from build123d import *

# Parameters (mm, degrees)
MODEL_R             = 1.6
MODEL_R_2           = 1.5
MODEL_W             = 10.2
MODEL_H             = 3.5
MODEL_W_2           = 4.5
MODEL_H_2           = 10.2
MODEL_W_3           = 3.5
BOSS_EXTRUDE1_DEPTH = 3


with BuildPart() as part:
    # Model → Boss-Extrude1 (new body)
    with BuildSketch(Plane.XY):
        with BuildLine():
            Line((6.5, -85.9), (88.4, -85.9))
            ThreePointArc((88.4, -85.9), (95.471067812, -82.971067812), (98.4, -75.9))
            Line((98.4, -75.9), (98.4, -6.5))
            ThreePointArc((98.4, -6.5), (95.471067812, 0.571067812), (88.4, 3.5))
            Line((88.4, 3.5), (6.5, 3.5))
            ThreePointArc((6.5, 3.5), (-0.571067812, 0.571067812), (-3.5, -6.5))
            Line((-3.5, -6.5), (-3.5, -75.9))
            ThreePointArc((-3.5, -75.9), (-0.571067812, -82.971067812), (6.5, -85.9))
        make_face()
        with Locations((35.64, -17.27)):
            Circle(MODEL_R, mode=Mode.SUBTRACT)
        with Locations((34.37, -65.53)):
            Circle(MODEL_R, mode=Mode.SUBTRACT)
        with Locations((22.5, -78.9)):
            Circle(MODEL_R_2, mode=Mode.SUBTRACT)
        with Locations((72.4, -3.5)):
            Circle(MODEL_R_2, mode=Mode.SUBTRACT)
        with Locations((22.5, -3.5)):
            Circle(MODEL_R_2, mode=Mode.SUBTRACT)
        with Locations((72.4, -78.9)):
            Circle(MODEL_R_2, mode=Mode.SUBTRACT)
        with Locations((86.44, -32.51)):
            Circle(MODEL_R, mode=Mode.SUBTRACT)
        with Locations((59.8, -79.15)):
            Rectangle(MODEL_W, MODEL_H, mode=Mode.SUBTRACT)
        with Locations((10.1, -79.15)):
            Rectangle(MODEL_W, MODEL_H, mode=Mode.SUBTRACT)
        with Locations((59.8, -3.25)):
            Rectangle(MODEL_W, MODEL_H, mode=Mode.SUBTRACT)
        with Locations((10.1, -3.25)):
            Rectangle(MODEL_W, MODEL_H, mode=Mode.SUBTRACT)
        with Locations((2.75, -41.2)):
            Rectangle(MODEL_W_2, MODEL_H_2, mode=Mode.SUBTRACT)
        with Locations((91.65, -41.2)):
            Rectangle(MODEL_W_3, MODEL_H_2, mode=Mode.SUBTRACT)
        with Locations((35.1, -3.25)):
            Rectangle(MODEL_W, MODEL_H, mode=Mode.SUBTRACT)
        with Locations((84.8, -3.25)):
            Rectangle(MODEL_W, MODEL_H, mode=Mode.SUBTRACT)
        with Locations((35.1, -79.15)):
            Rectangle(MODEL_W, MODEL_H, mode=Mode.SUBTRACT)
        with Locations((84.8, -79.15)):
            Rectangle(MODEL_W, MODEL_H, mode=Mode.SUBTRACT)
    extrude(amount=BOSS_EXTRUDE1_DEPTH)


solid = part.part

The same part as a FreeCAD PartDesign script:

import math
import FreeCAD as App
import Part
import Sketcher
from FreeCAD import Vector

doc = App.newDocument("Part")
body = doc.addObject("PartDesign::Body", "Body")

# Sketch on XY plane
sketch1 = body.newObject("Sketcher::SketchObject", "Sketch")
sketch1.AttachmentSupport = (doc.getObject("XY_Plane"), [""])
sketch1.MapMode = "FlatFace"
sketch1.addGeometry([
    Part.LineSegment(Vector(6.5, -85.9, 0), Vector(88.4, -85.9, 0)),  # 0
    Part.ArcOfCircle(Part.Circle(Vector(88.4, -75.9, 0), Vector(0, 0, 1), 10), math.radians(-90), math.radians(0)),  # 1
    Part.LineSegment(Vector(98.4, -75.9, 0), Vector(98.4, -6.5, 0)),  # 2
    Part.ArcOfCircle(Part.Circle(Vector(88.4, -6.5, 0), Vector(0, 0, 1), 10), math.radians(0), math.radians(90)),  # 3
    Part.LineSegment(Vector(88.4, 3.5, 0), Vector(6.5, 3.5, 0)),  # 4
    Part.ArcOfCircle(Part.Circle(Vector(6.5, -6.5, 0), Vector(0, 0, 1), 10), math.radians(90), math.radians(180)),  # 5
    Part.LineSegment(Vector(-3.5, -6.5, 0), Vector(-3.5, -75.9, 0)),  # 6
    Part.ArcOfCircle(Part.Circle(Vector(6.5, -75.9, 0), Vector(0, 0, 1), 10), math.radians(180), math.radians(270)),  # 7
    Part.LineSegment(Vector(15.2, -80.9, 0), Vector(5, -80.9, 0)),  # 8
    Part.LineSegment(Vector(5, -80.9, 0), Vector(5, -77.4, 0)),  # 9
    Part.LineSegment(Vector(5, -77.4, 0), Vector(15.2, -77.4, 0)),  # 10
    Part.LineSegment(Vector(15.2, -77.4, 0), Vector(15.2, -80.9, 0)),  # 11
    Part.Circle(Vector(22.5, -78.9, 0), Vector(0, 0, 1), 1.5),  # 12
    Part.LineSegment(Vector(40.2, -80.9, 0), Vector(30, -80.9, 0)),  # 13
    Part.LineSegment(Vector(30, -80.9, 0), Vector(30, -77.4, 0)),  # 14
    Part.LineSegment(Vector(30, -77.4, 0), Vector(40.2, -77.4, 0)),  # 15
    Part.LineSegment(Vector(40.2, -77.4, 0), Vector(40.2, -80.9, 0)),  # 16
    Part.Circle(Vector(34.37, -65.53, 0), Vector(0, 0, 1), 1.6),  # 17
    Part.LineSegment(Vector(64.9, -80.9, 0), Vector(54.7, -80.9, 0)),  # 18
    Part.LineSegment(Vector(54.7, -80.9, 0), Vector(54.7, -77.4, 0)),  # 19
    Part.LineSegment(Vector(54.7, -77.4, 0), Vector(64.9, -77.4, 0)),  # 20
    Part.LineSegment(Vector(64.9, -77.4, 0), Vector(64.9, -80.9, 0)),  # 21
    Part.Circle(Vector(72.4, -78.9, 0), Vector(0, 0, 1), 1.5),  # 22
    Part.LineSegment(Vector(89.9, -80.9, 0), Vector(79.7, -80.9, 0)),  # 23
    Part.LineSegment(Vector(79.7, -80.9, 0), Vector(79.7, -77.4, 0)),  # 24
    Part.LineSegment(Vector(79.7, -77.4, 0), Vector(89.9, -77.4, 0)),  # 25
    Part.LineSegment(Vector(89.9, -77.4, 0), Vector(89.9, -80.9, 0)),  # 26
    Part.LineSegment(Vector(5, -46.3, 0), Vector(0.5, -46.3, 0)),  # 27
    Part.LineSegment(Vector(0.5, -46.3, 0), Vector(0.5, -36.1, 0)),  # 28
    Part.LineSegment(Vector(0.5, -36.1, 0), Vector(5, -36.1, 0)),  # 29
    Part.LineSegment(Vector(5, -36.1, 0), Vector(5, -46.3, 0)),  # 30
    Part.LineSegment(Vector(15.2, -5, 0), Vector(5, -5, 0)),  # 31
    Part.LineSegment(Vector(5, -5, 0), Vector(5, -1.5, 0)),  # 32
    Part.LineSegment(Vector(5, -1.5, 0), Vector(15.2, -1.5, 0)),  # 33
    Part.LineSegment(Vector(15.2, -1.5, 0), Vector(15.2, -5, 0)),  # 34
    Part.Circle(Vector(22.5, -3.5, 0), Vector(0, 0, 1), 1.5),  # 35
    Part.Circle(Vector(35.64, -17.27, 0), Vector(0, 0, 1), 1.6),  # 36
    Part.LineSegment(Vector(40.2, -5, 0), Vector(30, -5, 0)),  # 37
    Part.LineSegment(Vector(30, -5, 0), Vector(30, -1.5, 0)),  # 38
    Part.LineSegment(Vector(30, -1.5, 0), Vector(40.2, -1.5, 0)),  # 39
    Part.LineSegment(Vector(40.2, -1.5, 0), Vector(40.2, -5, 0)),  # 40
    Part.LineSegment(Vector(93.4, -46.3, 0), Vector(89.9, -46.3, 0)),  # 41
    Part.LineSegment(Vector(89.9, -46.3, 0), Vector(89.9, -36.1, 0)),  # 42
    Part.LineSegment(Vector(89.9, -36.1, 0), Vector(93.4, -36.1, 0)),  # 43
    Part.LineSegment(Vector(93.4, -36.1, 0), Vector(93.4, -46.3, 0)),  # 44
    Part.Circle(Vector(86.44, -32.51, 0), Vector(0, 0, 1), 1.6),  # 45
    Part.LineSegment(Vector(64.9, -5, 0), Vector(54.7, -5, 0)),  # 46
    Part.LineSegment(Vector(54.7, -5, 0), Vector(54.7, -1.5, 0)),  # 47
    Part.LineSegment(Vector(54.7, -1.5, 0), Vector(64.9, -1.5, 0)),  # 48
    Part.LineSegment(Vector(64.9, -1.5, 0), Vector(64.9, -5, 0)),  # 49
    Part.Circle(Vector(72.4, -3.5, 0), Vector(0, 0, 1), 1.5),  # 50
    Part.LineSegment(Vector(89.9, -5, 0), Vector(79.7, -5, 0)),  # 51
    Part.LineSegment(Vector(79.7, -5, 0), Vector(79.7, -1.5, 0)),  # 52
    Part.LineSegment(Vector(79.7, -1.5, 0), Vector(89.9, -1.5, 0)),  # 53
    Part.LineSegment(Vector(89.9, -1.5, 0), Vector(89.9, -5, 0)),  # 54
], False)
sketch1.addConstraint([
    Sketcher.Constraint("Tangent", 0, 2, 1, 1),
    Sketcher.Constraint("Tangent", 1, 2, 2, 1),
    Sketcher.Constraint("Tangent", 2, 2, 3, 1),
    Sketcher.Constraint("Tangent", 3, 2, 4, 1),
    Sketcher.Constraint("Tangent", 4, 2, 5, 1),
    Sketcher.Constraint("Tangent", 5, 2, 6, 1),
    Sketcher.Constraint("Tangent", 6, 2, 7, 1),
    Sketcher.Constraint("Tangent", 7, 2, 0, 1),
    Sketcher.Constraint("Coincident", 8, 2, 9, 1),
    Sketcher.Constraint("Coincident", 9, 2, 10, 1),
    Sketcher.Constraint("Coincident", 10, 2, 11, 1),
    Sketcher.Constraint("Coincident", 11, 2, 8, 1),
    Sketcher.Constraint("Coincident", 13, 2, 14, 1),
    Sketcher.Constraint("Coincident", 14, 2, 15, 1),
    Sketcher.Constraint("Coincident", 15, 2, 16, 1),
    Sketcher.Constraint("Coincident", 16, 2, 13, 1),
    Sketcher.Constraint("Coincident", 18, 2, 19, 1),
    Sketcher.Constraint("Coincident", 19, 2, 20, 1),
    Sketcher.Constraint("Coincident", 20, 2, 21, 1),
    Sketcher.Constraint("Coincident", 21, 2, 18, 1),
    Sketcher.Constraint("Coincident", 23, 2, 24, 1),
    Sketcher.Constraint("Coincident", 24, 2, 25, 1),
    Sketcher.Constraint("Coincident", 25, 2, 26, 1),
    Sketcher.Constraint("Coincident", 26, 2, 23, 1),
    Sketcher.Constraint("Coincident", 27, 2, 28, 1),
    Sketcher.Constraint("Coincident", 28, 2, 29, 1),
    Sketcher.Constraint("Coincident", 29, 2, 30, 1),
    Sketcher.Constraint("Coincident", 30, 2, 27, 1),
    Sketcher.Constraint("Coincident", 31, 2, 32, 1),
    Sketcher.Constraint("Coincident", 32, 2, 33, 1),
    Sketcher.Constraint("Coincident", 33, 2, 34, 1),
    Sketcher.Constraint("Coincident", 34, 2, 31, 1),
    Sketcher.Constraint("Coincident", 37, 2, 38, 1),
    Sketcher.Constraint("Coincident", 38, 2, 39, 1),
    Sketcher.Constraint("Coincident", 39, 2, 40, 1),
    Sketcher.Constraint("Coincident", 40, 2, 37, 1),
    Sketcher.Constraint("Coincident", 41, 2, 42, 1),
    Sketcher.Constraint("Coincident", 42, 2, 43, 1),
    Sketcher.Constraint("Coincident", 43, 2, 44, 1),
    Sketcher.Constraint("Coincident", 44, 2, 41, 1),
    Sketcher.Constraint("Coincident", 46, 2, 47, 1),
    Sketcher.Constraint("Coincident", 47, 2, 48, 1),
    Sketcher.Constraint("Coincident", 48, 2, 49, 1),
    Sketcher.Constraint("Coincident", 49, 2, 46, 1),
    Sketcher.Constraint("Coincident", 51, 2, 52, 1),
    Sketcher.Constraint("Coincident", 52, 2, 53, 1),
    Sketcher.Constraint("Coincident", 53, 2, 54, 1),
    Sketcher.Constraint("Coincident", 54, 2, 51, 1),
    Sketcher.Constraint("Horizontal", 0),
    Sketcher.Constraint("Vertical", 2),
    Sketcher.Constraint("Horizontal", 4),
    Sketcher.Constraint("Vertical", 6),
    Sketcher.Constraint("Horizontal", 8),
    Sketcher.Constraint("Vertical", 9),
    Sketcher.Constraint("Horizontal", 10),
    Sketcher.Constraint("Vertical", 11),
    Sketcher.Constraint("Horizontal", 13),
    Sketcher.Constraint("Vertical", 14),
    Sketcher.Constraint("Horizontal", 15),
    Sketcher.Constraint("Vertical", 16),
    Sketcher.Constraint("Horizontal", 18),
    Sketcher.Constraint("Vertical", 19),
    Sketcher.Constraint("Horizontal", 20),
    Sketcher.Constraint("Vertical", 21),
    Sketcher.Constraint("Horizontal", 23),
    Sketcher.Constraint("Vertical", 24),
    Sketcher.Constraint("Horizontal", 25),
    Sketcher.Constraint("Vertical", 26),
    Sketcher.Constraint("Horizontal", 27),
    Sketcher.Constraint("Vertical", 28),
    Sketcher.Constraint("Horizontal", 29),
    Sketcher.Constraint("Vertical", 30),
    Sketcher.Constraint("Horizontal", 31),
    Sketcher.Constraint("Vertical", 32),
    Sketcher.Constraint("Horizontal", 33),
    Sketcher.Constraint("Vertical", 34),
    Sketcher.Constraint("Horizontal", 37),
    Sketcher.Constraint("Vertical", 38),
    Sketcher.Constraint("Horizontal", 39),
    Sketcher.Constraint("Vertical", 40),
    Sketcher.Constraint("Horizontal", 41),
    Sketcher.Constraint("Vertical", 42),
    Sketcher.Constraint("Horizontal", 43),
    Sketcher.Constraint("Vertical", 44),
    Sketcher.Constraint("Horizontal", 46),
    Sketcher.Constraint("Vertical", 47),
    Sketcher.Constraint("Horizontal", 48),
    Sketcher.Constraint("Vertical", 49),
    Sketcher.Constraint("Horizontal", 51),
    Sketcher.Constraint("Vertical", 52),
    Sketcher.Constraint("Horizontal", 53),
    Sketcher.Constraint("Vertical", 54),
    Sketcher.Constraint("Equal", 1, 3),
    Sketcher.Constraint("Equal", 3, 5),
    Sketcher.Constraint("Equal", 5, 7),
    Sketcher.Constraint("Equal", 12, 22),
    Sketcher.Constraint("Equal", 22, 35),
    Sketcher.Constraint("Equal", 17, 36),
    Sketcher.Constraint("Equal", 36, 45),
    Sketcher.Constraint("Equal", 35, 50),
    Sketcher.Constraint("Horizontal", 12, 3, 22, 3),
    Sketcher.Constraint("Horizontal", 35, 3, 50, 3),
    Sketcher.Constraint("Horizontal", 11, 2, 13, 2),
    Sketcher.Constraint("Horizontal", 10, 2, 14, 2),
    Sketcher.Constraint("Horizontal", 16, 2, 18, 2),
    Sketcher.Constraint("Horizontal", 15, 2, 19, 2),
    Sketcher.Constraint("Horizontal", 21, 2, 23, 2),
    Sketcher.Constraint("Horizontal", 20, 2, 24, 2),
    Sketcher.Constraint("Horizontal", 34, 2, 37, 2),
    Sketcher.Constraint("Horizontal", 33, 2, 38, 2),
    Sketcher.Constraint("Horizontal", 30, 2, 41, 2),
    Sketcher.Constraint("Horizontal", 29, 2, 42, 2),
    Sketcher.Constraint("Horizontal", 40, 2, 46, 2),
    Sketcher.Constraint("Horizontal", 39, 2, 47, 2),
    Sketcher.Constraint("Horizontal", 49, 2, 51, 2),
    Sketcher.Constraint("Horizontal", 48, 2, 52, 2),
    Sketcher.Constraint("Vertical", 12, 3, 35, 3),
    Sketcher.Constraint("Vertical", 22, 3, 50, 3),
    Sketcher.Constraint("Vertical", 9, 2, 29, 2),
    Sketcher.Constraint("Vertical", 30, 2, 31, 2),
    Sketcher.Constraint("Vertical", 11, 2, 33, 2),
    Sketcher.Constraint("Vertical", 14, 2, 37, 2),
    Sketcher.Constraint("Vertical", 16, 2, 39, 2),
    Sketcher.Constraint("Vertical", 26, 2, 41, 2),
    Sketcher.Constraint("Vertical", 19, 2, 46, 2),
    Sketcher.Constraint("Vertical", 21, 2, 48, 2),
    Sketcher.Constraint("Vertical", 24, 2, 51, 2),
    Sketcher.Constraint("Vertical", 42, 2, 53, 2),
    Sketcher.Constraint("Equal", 10, 13),
    Sketcher.Constraint("Equal", 15, 18),
    Sketcher.Constraint("Equal", 20, 23),
    Sketcher.Constraint("Equal", 43, 9),
    Sketcher.Constraint("Equal", 53, 28),
    Sketcher.Constraint("Equal", 26, 32),
    Sketcher.Constraint("Diameter", 12, 3.0),
    Sketcher.Constraint("Radius", 1, 10.0),
    Sketcher.Constraint("Diameter", 17, 3.2),
    Sketcher.Constraint("DistanceX", 0, 1, 0, 2, 81.9),
    Sketcher.Constraint("DistanceX", 8, 2, 8, 1, 10.2),
    Sketcher.Constraint("DistanceX", 27, 2, 27, 1, 4.5),
    Sketcher.Constraint("DistanceX", 41, 2, 41, 1, 3.5),
    Sketcher.Constraint("DistanceY", 2, 1, 2, 2, 69.4),
    Sketcher.Constraint("DistanceX", -1, 1, 8, 2, 5.0),
    Sketcher.Constraint("DistanceX", -1, 1, 13, 2, 30.0),
    Sketcher.Constraint("DistanceY", 31, 2, -1, 1, 5.0),
    Sketcher.Constraint("DistanceX", 7, 3, 12, 3, 16.0),
    Sketcher.Constraint("DistanceY", 12, 3, 7, 3, 3.0),
    Sketcher.Constraint("DistanceX", 22, 3, 1, 3, 16.0),
    Sketcher.Constraint("DistanceY", 5, 3, 35, 3, 3.0),
    Sketcher.Constraint("DistanceY", 8, 2, 7, 3, 5.0),
    Sketcher.Constraint("DistanceX", 6, 2, 27, 2, 4.0),
    Sketcher.Constraint("DistanceY", 5, 3, 32, 2, 5.0),
    Sketcher.Constraint("DistanceX", 3, 3, 43, 2, 5.0),
    Sketcher.Constraint("DistanceX", -1, 1, 18, 2, 54.7),
    Sketcher.Constraint("DistanceY", 27, 2, -1, 1, 46.3),
    Sketcher.Constraint("DistanceX", 36, 3, 45, 3, 50.8),
    Sketcher.Constraint("DistanceX", -1, 1, 17, 3, 34.37),
    Sketcher.Constraint("DistanceY", 17, 3, -1, 1, 65.53),
    Sketcher.Constraint("DistanceX", -1, 1, 36, 3, 35.64),
    Sketcher.Constraint("DistanceY", 36, 3, -1, 1, 17.27),
    Sketcher.Constraint("DistanceY", 45, 3, -1, 1, 32.51),
])
pad1 = body.newObject("PartDesign::Pad", "Pad")
pad1.Profile = sketch1
pad1.Length = 3

doc.recompute()
